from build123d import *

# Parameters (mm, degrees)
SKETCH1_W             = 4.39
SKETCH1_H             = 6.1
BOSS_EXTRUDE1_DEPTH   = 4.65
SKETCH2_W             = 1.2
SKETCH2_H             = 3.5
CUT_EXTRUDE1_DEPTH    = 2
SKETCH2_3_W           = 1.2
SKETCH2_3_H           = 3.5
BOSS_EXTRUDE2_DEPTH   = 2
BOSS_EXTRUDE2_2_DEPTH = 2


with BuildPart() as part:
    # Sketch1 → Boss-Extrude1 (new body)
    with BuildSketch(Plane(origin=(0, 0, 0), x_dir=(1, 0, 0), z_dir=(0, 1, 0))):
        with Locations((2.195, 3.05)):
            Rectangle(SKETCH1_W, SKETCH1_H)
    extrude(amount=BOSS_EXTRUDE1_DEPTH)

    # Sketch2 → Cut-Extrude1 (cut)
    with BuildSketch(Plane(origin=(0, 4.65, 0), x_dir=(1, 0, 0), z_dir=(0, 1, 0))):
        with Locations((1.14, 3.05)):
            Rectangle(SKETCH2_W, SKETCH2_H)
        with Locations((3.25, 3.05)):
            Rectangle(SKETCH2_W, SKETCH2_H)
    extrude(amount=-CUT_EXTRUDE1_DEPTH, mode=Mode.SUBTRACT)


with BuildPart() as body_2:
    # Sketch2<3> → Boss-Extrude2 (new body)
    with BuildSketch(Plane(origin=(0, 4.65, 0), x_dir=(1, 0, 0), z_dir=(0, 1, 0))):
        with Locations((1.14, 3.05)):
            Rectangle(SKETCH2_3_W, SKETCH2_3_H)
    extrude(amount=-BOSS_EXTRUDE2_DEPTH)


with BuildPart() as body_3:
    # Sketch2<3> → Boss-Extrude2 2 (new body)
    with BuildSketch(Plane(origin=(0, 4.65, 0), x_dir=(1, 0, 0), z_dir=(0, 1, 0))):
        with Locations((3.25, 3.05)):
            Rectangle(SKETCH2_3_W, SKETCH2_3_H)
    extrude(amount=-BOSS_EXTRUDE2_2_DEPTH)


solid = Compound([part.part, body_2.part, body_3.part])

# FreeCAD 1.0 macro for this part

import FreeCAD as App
import Part
import Sketcher
from FreeCAD import Vector

doc = App.newDocument("Part")
body = doc.addObject("PartDesign::Body", "Body")

# Sketch on XZ plane
sketch1 = body.newObject("Sketcher::SketchObject", "Sketch")
sketch1.AttachmentSupport = (doc.getObject("XZ_Plane"), [""])
sketch1.MapMode = "FlatFace"
sketch1.addGeometry(Part.LineSegment(Vector(0, -6.1, 0), Vector(0, 0, 0)), False)
sketch1.addGeometry(Part.LineSegment(Vector(0, 0, 0), Vector(4.39, 0, 0)), False)
sketch1.addGeometry(Part.LineSegment(Vector(4.39, 0, 0), Vector(4.39, -6.1, 0)), False)
sketch1.addGeometry(Part.LineSegment(Vector(4.39, -6.1, 0), Vector(0, -6.1, 0)), False)
sketch1.addConstraint(Sketcher.Constraint("Coincident", 0, 2, 1, 1))
sketch1.addConstraint(Sketcher.Constraint("Coincident", 1, 2, 2, 1))
sketch1.addConstraint(Sketcher.Constraint("Coincident", 2, 2, 3, 1))
sketch1.addConstraint(Sketcher.Constraint("Coincident", 3, 2, 0, 1))
sketch1.addConstraint(Sketcher.Constraint("Vertical", 0))
sketch1.addConstraint(Sketcher.Constraint("Horizontal", 1))
sketch1.addConstraint(Sketcher.Constraint("Vertical", 2))
sketch1.addConstraint(Sketcher.Constraint("Horizontal", 3))
sketch1.addConstraint(Sketcher.Constraint("Coincident", 0, 2, -1, 1))
sketch1.addConstraint(Sketcher.Constraint("DistanceY", 0, 1, 0, 2, 6.1))
sketch1.addConstraint(Sketcher.Constraint("DistanceX", 1, 1, 1, 2, 4.39))
pad1 = body.newObject("PartDesign::Pad", "Pad")
pad1.Profile = sketch1
pad1.Length = 4.65
pad1.Reversed = True

# Sketch on XZ plane
sketch2 = body.newObject("Sketcher::SketchObject", "Sketch001")
sketch2.AttachmentSupport = (doc.getObject("XZ_Plane"), [""])
sketch2.MapMode = "FlatFace"
sketch2.AttachmentOffset = App.Placement(Vector(0, 0, -4.65), App.Rotation())
sketch2.addGeometry(Part.LineSegment(Vector(0.54, -4.8, 0), Vector(0.54, -1.3, 0)), False)
sketch2.addGeometry(Part.LineSegment(Vector(0.54, -1.3, 0), Vector(1.74, -1.3, 0)), False)
sketch2.addGeometry(Part.LineSegment(Vector(1.74, -1.3, 0), Vector(1.74, -4.8, 0)), False)
sketch2.addGeometry(Part.LineSegment(Vector(1.74, -4.8, 0), Vector(0.54, -4.8, 0)), False)
sketch2.addGeometry(Part.LineSegment(Vector(2.65, -4.8, 0), Vector(2.65, -1.3, 0)), False)
sketch2.addGeometry(Part.LineSegment(Vector(2.65, -1.3, 0), Vector(3.85, -1.3, 0)), False)
sketch2.addGeometry(Part.LineSegment(Vector(3.85, -1.3, 0), Vector(3.85, -4.8, 0)), False)
sketch2.addGeometry(Part.LineSegment(Vector(3.85, -4.8, 0), Vector(2.65, -4.8, 0)), False)
sketch2.addConstraint(Sketcher.Constraint("Coincident", 0, 2, 1, 1))
sketch2.addConstraint(Sketcher.Constraint("Coincident", 1, 2, 2, 1))
sketch2.addConstraint(Sketcher.Constraint("Coincident", 2, 2, 3, 1))
sketch2.addConstraint(Sketcher.Constraint("Coincident", 3, 2, 0, 1))
sketch2.addConstraint(Sketcher.Constraint("Coincident", 4, 2, 5, 1))
sketch2.addConstraint(Sketcher.Constraint("Coincident", 5, 2, 6, 1))
sketch2.addConstraint(Sketcher.Constraint("Coincident", 6, 2, 7, 1))
sketch2.addConstraint(Sketcher.Constraint("Coincident", 7, 2, 4, 1))
sketch2.addConstraint(Sketcher.Constraint("Vertical", 0))
sketch2.addConstraint(Sketcher.Constraint("Horizontal", 1))
sketch2.addConstraint(Sketcher.Constraint("Vertical", 2))
sketch2.addConstraint(Sketcher.Constraint("Horizontal", 3))
sketch2.addConstraint(Sketcher.Constraint("Vertical", 4))
sketch2.addConstraint(Sketcher.Constraint("Horizontal", 5))
sketch2.addConstraint(Sketcher.Constraint("Vertical", 6))
sketch2.addConstraint(Sketcher.Constraint("Horizontal", 7))
sketch2.addConstraint(Sketcher.Constraint("Horizontal", 1, 2, 4, 2))
sketch2.addConstraint(Sketcher.Constraint("Horizontal", 3, 2, 6, 2))
sketch2.addConstraint(Sketcher.Constraint("Equal", 3, 5))
sketch2.addConstraint(Sketcher.Constraint("DistanceX", 1, 1, 1, 2, 1.2))
sketch2.addConstraint(Sketcher.Constraint("DistanceY", 0, 1, 0, 2, 3.5))
sketch2.addConstraint(Sketcher.Constraint("DistanceY", 0, 2, -1, 1, 1.3))
sketch2.addConstraint(Sketcher.Constraint("DistanceX", -1, 1, 0, 2, 0.54))
sketch2.addConstraint(Sketcher.Constraint("DistanceX", -1, 1, 4, 2, 2.65))
pocket1 = body.newObject("PartDesign::Pocket", "Pocket")
pocket1.Profile = sketch2
pocket1.Length = 2
pocket1.Reversed = True
body2 = doc.addObject("PartDesign::Body", "Body001")

# Sketch on XZ plane
sketch3 = body2.newObject("Sketcher::SketchObject", "Sketch002")
sketch3.AttachmentSupport = (doc.getObject("XZ_Plane001"), [""])
sketch3.MapMode = "FlatFace"
sketch3.AttachmentOffset = App.Placement(Vector(0, 0, -4.65), App.Rotation())
sketch3.addGeometry(Part.LineSegment(Vector(0.54, -4.8, 0), Vector(0.54, -1.3, 0)), False)
sketch3.addGeometry(Part.LineSegment(Vector(0.54, -1.3, 0), Vector(1.74, -1.3, 0)), False)
sketch3.addGeometry(Part.LineSegment(Vector(1.74, -1.3, 0), Vector(1.74, -4.8, 0)), False)
sketch3.addGeometry(Part.LineSegment(Vector(1.74, -4.8, 0), Vector(0.54, -4.8, 0)), False)
sketch3.addConstraint(Sketcher.Constraint("Coincident", 0, 2, 1, 1))
sketch3.addConstraint(Sketcher.Constraint("Coincident", 1, 2, 2, 1))
sketch3.addConstraint(Sketcher.Constraint("Coincident", 2, 2, 3, 1))
sketch3.addConstraint(Sketcher.Constraint("Coincident", 3, 2, 0, 1))
sketch3.addConstraint(Sketcher.Constraint("Vertical", 0))
sketch3.addConstraint(Sketcher.Constraint("Horizontal", 1))
sketch3.addConstraint(Sketcher.Constraint("Vertical", 2))
sketch3.addConstraint(Sketcher.Constraint("Horizontal", 3))
sketch3.addConstraint(Sketcher.Constraint("DistanceX", 1, 1, 1, 2, 1.2))
sketch3.addConstraint(Sketcher.Constraint("DistanceY", 0, 1, 0, 2, 3.5))
sketch3.addConstraint(Sketcher.Constraint("DistanceY", 0, 2, -1, 1, 1.3))
sketch3.addConstraint(Sketcher.Constraint("DistanceX", -1, 1, 0, 2, 0.54))
pad2 = body2.newObject("PartDesign::Pad", "Pad001")
pad2.Profile = sketch3
pad2.Length = 2
body3 = doc.addObject("PartDesign::Body", "Body002")

# Sketch on XZ plane
sketch4 = body3.newObject("Sketcher::SketchObject", "Sketch003")
sketch4.AttachmentSupport = (doc.getObject("XZ_Plane002"), [""])
sketch4.MapMode = "FlatFace"
sketch4.AttachmentOffset = App.Placement(Vector(0, 0, -4.65), App.Rotation())
sketch4.addGeometry(Part.LineSegment(Vector(2.65, -4.8, 0), Vector(2.65, -1.3, 0)), False)
sketch4.addGeometry(Part.LineSegment(Vector(2.65, -1.3, 0), Vector(3.85, -1.3, 0)), False)
sketch4.addGeometry(Part.LineSegment(Vector(3.85, -1.3, 0), Vector(3.85, -4.8, 0)), False)
sketch4.addGeometry(Part.LineSegment(Vector(3.85, -4.8, 0), Vector(2.65, -4.8, 0)), False)
sketch4.addConstraint(Sketcher.Constraint("Coincident", 0, 2, 1, 1))
sketch4.addConstraint(Sketcher.Constraint("Coincident", 1, 2, 2, 1))
sketch4.addConstraint(Sketcher.Constraint("Coincident", 2, 2, 3, 1))
sketch4.addConstraint(Sketcher.Constraint("Coincident", 3, 2, 0, 1))
sketch4.addConstraint(Sketcher.Constraint("Vertical", 0))
sketch4.addConstraint(Sketcher.Constraint("Horizontal", 1))
sketch4.addConstraint(Sketcher.Constraint("Vertical", 2))
sketch4.addConstraint(Sketcher.Constraint("Horizontal", 3))
sketch4.addConstraint(Sketcher.Constraint("DistanceX", 1, 1, 1, 2, 1.2))
sketch4.addConstraint(Sketcher.Constraint("DistanceY", 0, 1, 0, 2, 3.5))
sketch4.addConstraint(Sketcher.Constraint("DistanceY", 0, 2, -1, 1, 1.3))
sketch4.addConstraint(Sketcher.Constraint("DistanceX", -1, 1, 0, 2, 2.65))
pad3 = body3.newObject("PartDesign::Pad", "Pad002")
pad3.Profile = sketch4
pad3.Length = 2

doc.recompute()
